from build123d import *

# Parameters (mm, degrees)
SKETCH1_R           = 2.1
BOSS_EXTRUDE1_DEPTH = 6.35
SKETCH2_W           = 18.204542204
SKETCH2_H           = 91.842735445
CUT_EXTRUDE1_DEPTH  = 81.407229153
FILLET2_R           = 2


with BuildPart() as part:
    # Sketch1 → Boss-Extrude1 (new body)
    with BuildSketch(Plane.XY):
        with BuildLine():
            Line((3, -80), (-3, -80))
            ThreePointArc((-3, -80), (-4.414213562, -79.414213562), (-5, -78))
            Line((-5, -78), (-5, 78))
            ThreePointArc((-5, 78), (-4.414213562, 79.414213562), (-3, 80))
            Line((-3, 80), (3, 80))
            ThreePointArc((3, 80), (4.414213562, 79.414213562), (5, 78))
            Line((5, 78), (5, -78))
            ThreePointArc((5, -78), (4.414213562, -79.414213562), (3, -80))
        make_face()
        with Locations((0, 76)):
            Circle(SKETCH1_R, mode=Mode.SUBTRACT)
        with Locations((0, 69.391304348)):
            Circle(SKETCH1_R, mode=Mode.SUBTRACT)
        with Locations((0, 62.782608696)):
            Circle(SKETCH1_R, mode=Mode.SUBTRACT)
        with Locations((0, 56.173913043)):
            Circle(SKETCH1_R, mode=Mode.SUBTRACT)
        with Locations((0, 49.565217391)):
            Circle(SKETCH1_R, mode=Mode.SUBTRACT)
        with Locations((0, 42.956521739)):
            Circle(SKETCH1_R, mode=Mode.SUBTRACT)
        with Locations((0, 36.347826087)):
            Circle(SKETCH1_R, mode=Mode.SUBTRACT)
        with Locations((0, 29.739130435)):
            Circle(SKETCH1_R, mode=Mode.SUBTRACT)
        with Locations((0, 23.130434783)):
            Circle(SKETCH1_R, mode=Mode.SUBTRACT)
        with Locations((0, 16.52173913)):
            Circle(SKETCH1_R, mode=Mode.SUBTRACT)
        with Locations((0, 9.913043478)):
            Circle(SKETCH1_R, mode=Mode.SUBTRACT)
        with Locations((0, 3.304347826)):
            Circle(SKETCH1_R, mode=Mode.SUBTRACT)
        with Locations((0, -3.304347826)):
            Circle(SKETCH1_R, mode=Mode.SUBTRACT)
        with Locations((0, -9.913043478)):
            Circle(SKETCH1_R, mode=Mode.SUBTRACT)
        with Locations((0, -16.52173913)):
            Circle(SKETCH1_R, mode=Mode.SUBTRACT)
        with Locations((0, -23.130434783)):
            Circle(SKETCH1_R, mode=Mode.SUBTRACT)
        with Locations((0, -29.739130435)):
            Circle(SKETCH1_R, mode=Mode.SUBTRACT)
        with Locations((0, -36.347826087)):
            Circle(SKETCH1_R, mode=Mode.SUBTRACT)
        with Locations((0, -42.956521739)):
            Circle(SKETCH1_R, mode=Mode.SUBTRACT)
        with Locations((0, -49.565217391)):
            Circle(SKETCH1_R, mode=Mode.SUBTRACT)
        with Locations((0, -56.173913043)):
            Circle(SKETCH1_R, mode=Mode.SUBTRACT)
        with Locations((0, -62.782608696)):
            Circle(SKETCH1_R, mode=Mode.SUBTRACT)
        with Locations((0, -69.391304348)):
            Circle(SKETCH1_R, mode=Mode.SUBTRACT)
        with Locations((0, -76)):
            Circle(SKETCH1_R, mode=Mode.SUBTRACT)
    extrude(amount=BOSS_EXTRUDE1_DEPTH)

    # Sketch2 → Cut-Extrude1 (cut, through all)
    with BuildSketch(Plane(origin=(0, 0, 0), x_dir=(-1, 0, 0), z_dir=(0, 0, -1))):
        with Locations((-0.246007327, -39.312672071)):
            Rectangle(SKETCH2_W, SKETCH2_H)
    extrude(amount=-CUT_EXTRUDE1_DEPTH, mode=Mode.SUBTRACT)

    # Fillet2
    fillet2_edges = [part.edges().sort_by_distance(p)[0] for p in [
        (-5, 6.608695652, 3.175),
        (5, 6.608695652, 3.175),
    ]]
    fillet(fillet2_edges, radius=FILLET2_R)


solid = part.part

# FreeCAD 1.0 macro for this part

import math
import FreeCAD as App
import Part
import Sketcher


def edges_at(feature, points):
    """Names of the edges that pass closest to the given points."""
    edges = feature.Shape.Edges
    near = lambda p: min(range(len(edges)), key=lambda i: edges[i].distToShape(Part.Vertex(*p))[0])
    return sorted({f"Edge{near(p) + 1}" for p in points})

doc = App.newDocument("Part")
params = doc.addObject("Spreadsheet::Sheet", "Params")
for row, (alias, value) in enumerate([
    ("sketch1_radius", "2 mm"),
    ("sketch1_diameter", "4.2 mm"),
    ("sketch1_width", "6 mm"),
    ("sketch1_height", "156 mm"),
    ("pad1_length", "6.35 mm"),
    ("fillet_radius", "2 mm"),
], start=1):
    params.set(f"A{row}", alias)
    params.set(f"B{row}", "=" + value)
    params.setAlias(f"B{row}", alias)

body = doc.addObject("PartDesign::Body", "Body")

# Sketch on XY plane
sketch1 = doc.addObject("Sketcher::SketchObject", "Sketch")
body.addObject(sketch1)
sketch1.AttachmentSupport = (doc.XY_Plane, [""])
sketch1.MapMode = "FlatFace"
sketch1.addGeometry([
    Part.LineSegment(App.Vector(-3, -80, 0), App.Vector(3, -80, 0)),  # 0
    Part.ArcOfCircle(Part.Circle(App.Vector(3, -78, 0), App.Vector(0, 0, 1), 2), math.radians(-90), math.radians(0)),  # 1
    Part.LineSegment(App.Vector(5, -78, 0), App.Vector(5, 78, 0)),  # 2
    Part.ArcOfCircle(Part.Circle(App.Vector(3, 78, 0), App.Vector(0, 0, 1), 2), math.radians(0), math.radians(90)),  # 3
    Part.LineSegment(App.Vector(3, 80, 0), App.Vector(-3, 80, 0)),  # 4
    Part.ArcOfCircle(Part.Circle(App.Vector(-3, 78, 0), App.Vector(0, 0, 1), 2), math.radians(90), math.radians(180)),  # 5
    Part.LineSegment(App.Vector(-5, 78, 0), App.Vector(-5, -78, 0)),  # 6
    Part.ArcOfCircle(Part.Circle(App.Vector(-3, -78, 0), App.Vector(0, 0, 1), 2), math.radians(-180), math.radians(-90)),  # 7
    Part.Circle(App.Vector(0, -76, 0), App.Vector(0, 0, 1), 2.1),  # 8
    Part.Circle(App.Vector(0, -69.4, 0), App.Vector(0, 0, 1), 2.1),  # 9
    Part.Circle(App.Vector(0, -62.8, 0), App.Vector(0, 0, 1), 2.1),  # 10
    Part.Circle(App.Vector(0, -56.2, 0), App.Vector(0, 0, 1), 2.1),  # 11
    Part.Circle(App.Vector(0, -49.6, 0), App.Vector(0, 0, 1), 2.1),  # 12
    Part.Circle(App.Vector(0, -43, 0), App.Vector(0, 0, 1), 2.1),  # 13
    Part.Circle(App.Vector(0, -36.3, 0), App.Vector(0, 0, 1), 2.1),  # 14
    Part.Circle(App.Vector(0, -29.7, 0), App.Vector(0, 0, 1), 2.1),  # 15
    Part.Circle(App.Vector(0, -23.1, 0), App.Vector(0, 0, 1), 2.1),  # 16
    Part.Circle(App.Vector(0, -16.5, 0), App.Vector(0, 0, 1), 2.1),  # 17
    Part.Circle(App.Vector(0, -9.9, 0), App.Vector(0, 0, 1), 2.1),  # 18
    Part.Circle(App.Vector(0, -3.3, 0), App.Vector(0, 0, 1), 2.1),  # 19
    Part.Circle(App.Vector(0, 3.3, 0), App.Vector(0, 0, 1), 2.1),  # 20
    Part.Circle(App.Vector(0, 9.9, 0), App.Vector(0, 0, 1), 2.1),  # 21
    Part.Circle(App.Vector(0, 16.5, 0), App.Vector(0, 0, 1), 2.1),  # 22
    Part.Circle(App.Vector(0, 23.1, 0), App.Vector(0, 0, 1), 2.1),  # 23
    Part.Circle(App.Vector(0, 29.7, 0), App.Vector(0, 0, 1), 2.1),  # 24
    Part.Circle(App.Vector(0, 36.3, 0), App.Vector(0, 0, 1), 2.1),  # 25
    Part.Circle(App.Vector(0, 43, 0), App.Vector(0, 0, 1), 2.1),  # 26
    Part.Circle(App.Vector(0, 49.6, 0), App.Vector(0, 0, 1), 2.1),  # 27
    Part.Circle(App.Vector(0, 56.2, 0), App.Vector(0, 0, 1), 2.1),  # 28
    Part.Circle(App.Vector(0, 62.8, 0), App.Vector(0, 0, 1), 2.1),  # 29
    Part.Circle(App.Vector(0, 69.4, 0), App.Vector(0, 0, 1), 2.1),  # 30
    Part.Circle(App.Vector(0, 76, 0), App.Vector(0, 0, 1), 2.1),  # 31
], False)
sketch1.addConstraint([
    Sketcher.Constraint("Tangent", 0, 2, 1, 1),
    Sketcher.Constraint("Tangent", 1, 2, 2, 1),
    Sketcher.Constraint("Tangent", 2, 2, 3, 1),
    Sketcher.Constraint("Tangent", 3, 2, 4, 1),
    Sketcher.Constraint("Tangent", 4, 2, 5, 1),
    Sketcher.Constraint("Tangent", 5, 2, 6, 1),
    Sketcher.Constraint("Tangent", 6, 2, 7, 1),
    Sketcher.Constraint("Tangent", 7, 2, 0, 1),
    Sketcher.Constraint("Horizontal", 0),
    Sketcher.Constraint("Vertical", 2),
    Sketcher.Constraint("Horizontal", 4),
    Sketcher.Constraint("Vertical", 6),
    Sketcher.Constraint("Equal", 1, 3),
    Sketcher.Constraint("Equal", 3, 5),
    Sketcher.Constraint("Equal", 5, 7),
    Sketcher.Constraint("Equal", 8, 9),
    Sketcher.Constraint("Equal", 9, 10),
    Sketcher.Constraint("Equal", 10, 11),
    Sketcher.Constraint("Equal", 11, 12),
    Sketcher.Constraint("Equal", 12, 13),
    Sketcher.Constraint("Equal", 13, 14),
    Sketcher.Constraint("Equal", 14, 15),
    Sketcher.Constraint("Equal", 15, 16),
    Sketcher.Constraint("Equal", 16, 17),
    Sketcher.Constraint("Equal", 17, 18),
    Sketcher.Constraint("Equal", 18, 19),
    Sketcher.Constraint("Equal", 19, 20),
    Sketcher.Constraint("Equal", 20, 21),
    Sketcher.Constraint("Equal", 21, 22),
    Sketcher.Constraint("Equal", 22, 23),
    Sketcher.Constraint("Equal", 23, 24),
    Sketcher.Constraint("Equal", 24, 25),
    Sketcher.Constraint("Equal", 25, 26),
    Sketcher.Constraint("Equal", 26, 27),
    Sketcher.Constraint("Equal", 27, 28),
    Sketcher.Constraint("Equal", 28, 29),
    Sketcher.Constraint("Equal", 29, 30),
    Sketcher.Constraint("Equal", 30, 31),
    Sketcher.Constraint("Symmetric", 1, 3, 5, 3, -1, 1),
    Sketcher.Constraint("Symmetric", 19, 3, 20, 3, -1, 1),
    Sketcher.Constraint("Symmetric", 18, 3, 21, 3, -1, 1),
    Sketcher.Constraint("Symmetric", 17, 3, 22, 3, -1, 1),
    Sketcher.Constraint("Symmetric", 16, 3, 23, 3, -1, 1),
    Sketcher.Constraint("Symmetric", 15, 3, 24, 3, -1, 1),
    Sketcher.Constraint("Symmetric", 14, 3, 25, 3, -1, 1),
    Sketcher.Constraint("Symmetric", 13, 3, 26, 3, -1, 1),
    Sketcher.Constraint("Symmetric", 12, 3, 27, 3, -1, 1),
    Sketcher.Constraint("Symmetric", 11, 3, 28, 3, -1, 1),
    Sketcher.Constraint("Symmetric", 10, 3, 29, 3, -1, 1),
    Sketcher.Constraint("Symmetric", 9, 3, 30, 3, -1, 1),
    Sketcher.Constraint("Symmetric", 8, 3, 31, 3, -1, 1),
    Sketcher.Constraint("PointOnObject", 8, 3, -2),
    Sketcher.Constraint("PointOnObject", 9, 3, -2),
    Sketcher.Constraint("PointOnObject", 10, 3, -2),
    Sketcher.Constraint("PointOnObject", 11, 3, -2),
    Sketcher.Constraint("PointOnObject", 12, 3, -2),
    Sketcher.Constraint("PointOnObject", 13, 3, -2),
    Sketcher.Constraint("PointOnObject", 14, 3, -2),
    Sketcher.Constraint("PointOnObject", 15, 3, -2),
    Sketcher.Constraint("PointOnObject", 16, 3, -2),
    Sketcher.Constraint("PointOnObject", 17, 3, -2),
    Sketcher.Constraint("PointOnObject", 18, 3, -2),
    Sketcher.Constraint("PointOnObject", 19, 3, -2),
    Sketcher.Constraint("Radius", 1, 2.0),
    Sketcher.Constraint("Diameter", 8, 4.2),
    Sketcher.Constraint("DistanceX", 0, 1, 0, 2, 6.0),
    Sketcher.Constraint("DistanceY", 2, 1, 2, 2, 156.0),
    Sketcher.Constraint("DistanceY", 8, 3, -1, 1, 76.0),
    Sketcher.Constraint("DistanceY", 10, 3, -1, 1, 62.782609),
    Sketcher.Constraint("DistanceY", 13, 3, -1, 1, 42.956522),
    Sketcher.Constraint("DistanceY", 15, 3, -1, 1, 29.73913),
    Sketcher.Constraint("DistanceY", 17, 3, -1, 1, 16.521739),
    Sketcher.Constraint("DistanceY", 9, 3, 11, 3, 13.217391),
    Sketcher.Constraint("DistanceY", 10, 3, 12, 3, 13.217391),
    Sketcher.Constraint("DistanceY", 11, 3, 13, 3, 13.217391),
    Sketcher.Constraint("DistanceY", 12, 3, 14, 3, 13.217391),
    Sketcher.Constraint("DistanceY", 14, 3, 16, 3, 13.217391),
    Sketcher.Constraint("DistanceY", 16, 3, 18, 3, 13.217391),
    Sketcher.Constraint("DistanceY", 17, 3, 19, 3, 13.217391),
])
sketch1.setExpression("Constraints[63]", "Params.sketch1_radius")
sketch1.setExpression("Constraints[64]", "Params.sketch1_diameter")
sketch1.setExpression("Constraints[65]", "Params.sketch1_width")
sketch1.setExpression("Constraints[66]", "Params.sketch1_height")
pad1 = doc.addObject("PartDesign::Pad", "Pad")
body.addObject(pad1)
pad1.Profile = sketch1
pad1.setExpression("Length", "Params.pad1_length")

# Sketch on XY plane
sketch2 = doc.addObject("Sketcher::SketchObject", "Sketch001")
body.addObject(sketch2)
sketch2.AttachmentSupport = (doc.XY_Plane, [""])
sketch2.MapMode = "FlatFace"
sketch2.addGeometry([
    Part.LineSegment(App.Vector(9, 7, 0), App.Vector(9, -85, 0)),
    Part.LineSegment(App.Vector(9, -85, 0), App.Vector(-9, -85, 0)),
    Part.LineSegment(App.Vector(-9, -85, 0), App.Vector(-9, 7, 0)),
    Part.LineSegment(App.Vector(-9, 7, 0), App.Vector(9, 7, 0)),
], False)
sketch2.addConstraint([
    Sketcher.Constraint("Coincident", 0, 2, 1, 1),
    Sketcher.Constraint("Coincident", 1, 2, 2, 1),
    Sketcher.Constraint("Coincident", 2, 2, 3, 1),
    Sketcher.Constraint("Coincident", 3, 2, 0, 1),
    Sketcher.Constraint("Vertical", 0),
    Sketcher.Constraint("Horizontal", 1),
    Sketcher.Constraint("Vertical", 2),
    Sketcher.Constraint("Horizontal", 3),
    Sketcher.Constraint("DistanceX", 1, 2, 1, 1, 18.204542),
    Sketcher.Constraint("DistanceY", 0, 2, 0, 1, 91.842735),
    Sketcher.Constraint("DistanceX", -1, 1, 0, 2, 9.348278),
    Sketcher.Constraint("DistanceY", 0, 2, -1, 1, 85.23404),
])
pocket1 = doc.addObject("PartDesign::Pocket", "Pocket")
body.addObject(pocket1)
pocket1.Profile = sketch2
pocket1.Type = "ThroughAll"
pocket1.Reversed = True
doc.recompute()

fillet = doc.addObject("PartDesign::Fillet", "Fillet")
body.addObject(fillet)
fillet.Base = (pocket1, edges_at(pocket1, [(-5, 6.609, 3.175), (5, 6.609, 3.175)]))
fillet.setExpression("Radius", "Params.fillet_radius")

doc.recompute()
